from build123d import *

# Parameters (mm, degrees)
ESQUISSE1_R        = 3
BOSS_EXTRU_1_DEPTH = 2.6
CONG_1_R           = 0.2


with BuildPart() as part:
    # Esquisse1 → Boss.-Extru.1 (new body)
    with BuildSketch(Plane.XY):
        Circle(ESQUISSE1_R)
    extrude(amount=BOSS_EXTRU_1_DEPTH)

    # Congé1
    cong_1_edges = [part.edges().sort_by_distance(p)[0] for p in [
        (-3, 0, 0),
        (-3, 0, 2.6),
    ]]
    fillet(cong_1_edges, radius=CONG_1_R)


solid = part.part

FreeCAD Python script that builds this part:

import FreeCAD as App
import Part
import Sketcher

V = App.Vector
Q = App.Units.Quantity


def edges_at(feature, points):
    """Names of the edges that pass closest to the given points."""
    edges = feature.Shape.Edges
    near = lambda p: min(range(len(edges)), key=lambda i: edges[i].distToShape(Part.Vertex(*p))[0])
    return sorted({f"Edge{near(p) + 1}" for p in points})

doc = App.newDocument("Part")
body = doc.addObject("PartDesign::Body", "Body")

sketch1 = body.newObject("Sketcher::SketchObject", "Sketch")
sketch1.AttachmentSupport = (doc.getObject("XY_Plane"), [""])
sketch1.MapMode = "FlatFace"
sketch1.addGeometry(Part.Circle(V(0, 0, 0), V(0, 0, 1), 3), False)
sketch1.addConstraint([
    Sketcher.Constraint("Coincident", 0, 3, -1, 1),
    Sketcher.Constraint("Diameter", 0, Q("6 mm")),
])
pad1 = body.newObject("PartDesign::Pad", "Pad")
pad1.Profile = sketch1
pad1.Length = 2.6
doc.recompute()

fillet = body.newObject("PartDesign::Fillet", "Fillet")
fillet.Base = (pad1, edges_at(pad1, [(-3, 0, 0), (-3, 0, 2.6)]))
fillet.Radius = 0.2

doc.recompute()
